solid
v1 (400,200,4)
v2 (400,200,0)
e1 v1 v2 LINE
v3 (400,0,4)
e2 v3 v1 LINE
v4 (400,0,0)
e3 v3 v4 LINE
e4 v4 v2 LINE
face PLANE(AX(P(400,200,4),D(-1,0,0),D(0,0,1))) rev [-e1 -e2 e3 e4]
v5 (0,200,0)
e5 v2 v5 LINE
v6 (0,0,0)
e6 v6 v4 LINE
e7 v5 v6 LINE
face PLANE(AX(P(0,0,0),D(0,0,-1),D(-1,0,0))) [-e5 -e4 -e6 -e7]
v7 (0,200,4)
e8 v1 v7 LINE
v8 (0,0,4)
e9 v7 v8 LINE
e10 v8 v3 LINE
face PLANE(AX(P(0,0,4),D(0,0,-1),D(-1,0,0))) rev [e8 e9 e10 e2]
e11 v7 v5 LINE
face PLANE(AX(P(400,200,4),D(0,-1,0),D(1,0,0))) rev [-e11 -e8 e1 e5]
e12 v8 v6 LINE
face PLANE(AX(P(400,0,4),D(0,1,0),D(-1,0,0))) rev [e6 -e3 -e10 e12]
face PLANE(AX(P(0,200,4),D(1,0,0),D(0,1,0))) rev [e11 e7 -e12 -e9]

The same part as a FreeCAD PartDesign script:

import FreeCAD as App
import Part
import Sketcher

V = App.Vector
Q = App.Units.Quantity


def add_polygon(sketch, points):
    """Adds a closed chain of lines whose ends are joined by coincident constraints."""
    first, n = sketch.GeometryCount, len(points)
    for a, b in zip(points, points[1:] + points[:1]):
        sketch.addGeometry(Part.LineSegment(App.Vector(*a, 0), App.Vector(*b, 0)), False)
    for i in range(n):
        sketch.addConstraint(Sketcher.Constraint("Coincident", first + i, 2, first + (i + 1) % n, 1))

doc = App.newDocument("Part")
params = doc.addObject("Spreadsheet::Sheet", "Params")
for row, (alias, value) in enumerate([
    ("sketch1_width", "400 mm"),
    ("sketch1_height", "200 mm"),
    ("pad1_length", "4 mm"),
], start=1):
    params.set(f"A{row}", alias)
    params.set(f"B{row}", "=" + value)
    params.setAlias(f"B{row}", alias)

body = doc.addObject("PartDesign::Body", "Body")

# Sketch on XY plane
sketch1 = body.newObject("Sketcher::SketchObject", "Sketch")
sketch1.AttachmentSupport = (doc.getObject("XY_Plane"), [""])
sketch1.MapMode = "FlatFace"
add_polygon(sketch1, [(0, 200), (0, 0), (400, 0), (400, 200)])  # lines 0-3
sketch1.addConstraint([
    Sketcher.Constraint("Vertical", 0),
    Sketcher.Constraint("Horizontal", 1),
    Sketcher.Constraint("Vertical", 2),
    Sketcher.Constraint("Horizontal", 3),
    Sketcher.Constraint("Coincident", 0, 2, -1, 1),
    Sketcher.Constraint("DistanceX", 1, 1, 1, 2, Q("400 mm")),
    Sketcher.Constraint("DistanceY", 0, 2, 0, 1, Q("200 mm")),
])
sketch1.setExpression("Constraints[9]", "Params.sketch1_width")
sketch1.setExpression("Constraints[10]", "Params.sketch1_height")
pad1 = body.newObject("PartDesign::Pad", "Pad")
pad1.Profile = sketch1
pad1.setExpression("Length", "Params.pad1_length")

doc.recompute()
